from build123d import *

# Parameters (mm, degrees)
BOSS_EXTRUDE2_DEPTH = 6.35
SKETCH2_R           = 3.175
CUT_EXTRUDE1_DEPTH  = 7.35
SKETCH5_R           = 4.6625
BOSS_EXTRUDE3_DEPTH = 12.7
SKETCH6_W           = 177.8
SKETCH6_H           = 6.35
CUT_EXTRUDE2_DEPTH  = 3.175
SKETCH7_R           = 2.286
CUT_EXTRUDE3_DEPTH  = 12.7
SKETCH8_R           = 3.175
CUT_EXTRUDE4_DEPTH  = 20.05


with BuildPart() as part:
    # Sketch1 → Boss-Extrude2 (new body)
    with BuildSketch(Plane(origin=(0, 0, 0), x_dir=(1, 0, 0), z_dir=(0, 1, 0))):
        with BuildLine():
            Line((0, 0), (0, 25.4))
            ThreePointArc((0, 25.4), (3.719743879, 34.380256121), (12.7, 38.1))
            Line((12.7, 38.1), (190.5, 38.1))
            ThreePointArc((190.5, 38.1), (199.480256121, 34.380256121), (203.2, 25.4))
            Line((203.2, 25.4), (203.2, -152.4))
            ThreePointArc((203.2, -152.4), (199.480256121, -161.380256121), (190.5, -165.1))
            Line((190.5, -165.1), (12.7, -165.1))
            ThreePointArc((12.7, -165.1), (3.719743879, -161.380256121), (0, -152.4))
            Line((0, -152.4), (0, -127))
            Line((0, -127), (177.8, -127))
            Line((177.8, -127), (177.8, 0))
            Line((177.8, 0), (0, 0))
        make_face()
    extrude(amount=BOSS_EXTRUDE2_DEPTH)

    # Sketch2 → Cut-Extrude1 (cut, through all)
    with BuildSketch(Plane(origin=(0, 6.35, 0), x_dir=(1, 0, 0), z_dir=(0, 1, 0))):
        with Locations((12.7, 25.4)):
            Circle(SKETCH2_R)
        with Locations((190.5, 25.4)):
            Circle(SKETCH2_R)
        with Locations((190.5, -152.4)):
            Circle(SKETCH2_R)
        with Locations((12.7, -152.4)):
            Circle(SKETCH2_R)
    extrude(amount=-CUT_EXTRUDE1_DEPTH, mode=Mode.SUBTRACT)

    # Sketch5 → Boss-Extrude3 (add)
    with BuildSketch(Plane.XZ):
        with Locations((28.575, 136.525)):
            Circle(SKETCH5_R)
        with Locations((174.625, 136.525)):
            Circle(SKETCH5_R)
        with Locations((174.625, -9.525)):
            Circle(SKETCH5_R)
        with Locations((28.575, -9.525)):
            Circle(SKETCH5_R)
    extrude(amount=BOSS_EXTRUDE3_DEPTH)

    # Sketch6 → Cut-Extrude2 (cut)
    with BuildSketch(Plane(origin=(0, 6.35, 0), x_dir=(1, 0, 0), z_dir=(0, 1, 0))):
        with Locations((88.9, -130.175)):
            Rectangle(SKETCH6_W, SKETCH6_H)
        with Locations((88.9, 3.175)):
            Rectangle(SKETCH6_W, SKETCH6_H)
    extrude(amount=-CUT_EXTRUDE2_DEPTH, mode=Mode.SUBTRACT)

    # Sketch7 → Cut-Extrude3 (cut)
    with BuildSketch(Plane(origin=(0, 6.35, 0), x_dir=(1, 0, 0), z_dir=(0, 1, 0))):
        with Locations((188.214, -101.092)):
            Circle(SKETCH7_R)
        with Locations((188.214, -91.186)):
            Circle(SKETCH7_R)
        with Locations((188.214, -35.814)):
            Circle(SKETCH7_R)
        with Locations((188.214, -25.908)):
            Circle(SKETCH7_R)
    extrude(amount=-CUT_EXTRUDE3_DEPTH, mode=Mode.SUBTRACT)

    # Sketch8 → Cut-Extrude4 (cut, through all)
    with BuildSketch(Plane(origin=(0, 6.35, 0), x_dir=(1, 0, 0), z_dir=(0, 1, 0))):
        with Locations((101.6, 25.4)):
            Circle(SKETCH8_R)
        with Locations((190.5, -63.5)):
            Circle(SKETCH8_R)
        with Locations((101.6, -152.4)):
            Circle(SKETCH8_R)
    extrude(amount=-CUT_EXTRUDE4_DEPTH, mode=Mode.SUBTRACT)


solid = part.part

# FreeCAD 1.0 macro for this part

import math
import FreeCAD as App
import Part
import Sketcher
Q = App.Units.Quantity


def add_polygon(sketch, points):
    """Adds a closed chain of lines whose ends are joined by coincident constraints."""
    first, n = sketch.GeometryCount, len(points)
    for a, b in zip(points, points[1:] + points[:1]):
        sketch.addGeometry(Part.LineSegment(App.Vector(*a, 0), App.Vector(*b, 0)), False)
    for i in range(n):
        sketch.addConstraint(Sketcher.Constraint("Coincident", first + i, 2, first + (i + 1) % n, 1))

doc = App.newDocument("Part")
params = doc.addObject("Spreadsheet::Sheet", "Params")
for row, (alias, value) in enumerate([
    ("sketch1_radius", "0.5 in"),
    ("sketch1_width", "7 in"),
    ("sketch1_height", "1 in"),
    ("pad1_length", "0.25 in"),
    ("sketch2_diameter", "0.25 in"),
    ("pad2_length", "0.5 in"),
    ("sketch4_width", "7 in"),
    ("sketch4_height", "0.25 in"),
    ("pocket2_length", "0.125 in"),
    ("sketch5_diameter", "0.18 in"),
    ("pocket3_length", "0.5 in"),
    ("sketch6_diameter", "0.25 in"),
], start=1):
    params.set(f"A{row}", alias)
    params.set(f"B{row}", "=" + value)
    params.setAlias(f"B{row}", alias)

body = doc.addObject("PartDesign::Body", "Body")

# Sketch on XZ plane
sketch1 = body.newObject("Sketcher::SketchObject", "Sketch")
sketch1.AttachmentSupport = (doc.getObject("XZ_Plane"), [""])
sketch1.MapMode = "FlatFace"
sketch1.addGeometry([
    Part.LineSegment(App.Vector(0, -25, 0), App.Vector(0, 0, 0)),  # 0
    Part.LineSegment(App.Vector(0, 0, 0), App.Vector(178, 0, 0)),  # 1
    Part.LineSegment(App.Vector(178, 0, 0), App.Vector(178, 127, 0)),  # 2
    Part.LineSegment(App.Vector(178, 127, 0), App.Vector(0, 127, 0)),  # 3
    Part.LineSegment(App.Vector(0, 127, 0), App.Vector(0, 152, 0)),  # 4
    Part.ArcOfCircle(Part.Circle(App.Vector(13, 152, 0), App.Vector(0, 0, 1), 13), math.radians(90), math.radians(180)),  # 5
    Part.LineSegment(App.Vector(13, 165, 0), App.Vector(190, 165, 0)),  # 6
    Part.ArcOfCircle(Part.Circle(App.Vector(190, 152, 0), App.Vector(0, 0, 1), 13), math.radians(0), math.radians(90)),  # 7
    Part.LineSegment(App.Vector(203, 152, 0), App.Vector(203, -25, 0)),  # 8
    Part.ArcOfCircle(Part.Circle(App.Vector(190, -25, 0), App.Vector(0, 0, 1), 13), math.radians(-90), math.radians(0)),  # 9
    Part.LineSegment(App.Vector(190, -38, 0), App.Vector(13, -38, 0)),  # 10
    Part.ArcOfCircle(Part.Circle(App.Vector(13, -25, 0), App.Vector(0, 0, 1), 13), math.radians(180), math.radians(270)),  # 11
], False)
sketch1.addConstraint([
    Sketcher.Constraint("Coincident", 0, 2, 1, 1),
    Sketcher.Constraint("Coincident", 1, 2, 2, 1),
    Sketcher.Constraint("Coincident", 2, 2, 3, 1),
    Sketcher.Constraint("Coincident", 3, 2, 4, 1),
    Sketcher.Constraint("Tangent", 4, 2, 5, 2),
    Sketcher.Constraint("Tangent", 5, 1, 6, 1),
    Sketcher.Constraint("Tangent", 6, 2, 7, 2),
    Sketcher.Constraint("Tangent", 7, 1, 8, 1),
    Sketcher.Constraint("Tangent", 8, 2, 9, 2),
    Sketcher.Constraint("Tangent", 9, 1, 10, 1),
    Sketcher.Constraint("Tangent", 10, 2, 11, 2),
    Sketcher.Constraint("Tangent", 11, 1, 0, 1),
    Sketcher.Constraint("Vertical", 0),
    Sketcher.Constraint("Horizontal", 1),
    Sketcher.Constraint("Vertical", 2),
    Sketcher.Constraint("Horizontal", 3),
    Sketcher.Constraint("Vertical", 4),
    Sketcher.Constraint("Horizontal", 6),
    Sketcher.Constraint("Vertical", 8),
    Sketcher.Constraint("Horizontal", 10),
    Sketcher.Constraint("Coincident", 0, 2, -1, 1),
    Sketcher.Constraint("Equal", 5, 7),
    Sketcher.Constraint("Equal", 7, 9),
    Sketcher.Constraint("Equal", 9, 11),
    Sketcher.Constraint("PointOnObject", 3, 2, -2),
    Sketcher.Constraint("Equal", 3, 6),
    Sketcher.Constraint("Equal", 0, 4),
    Sketcher.Constraint("Equal", 10, 8),
    Sketcher.Constraint("Radius", 5, Q("0.5 in")),
    Sketcher.Constraint("DistanceX", 1, 1, 1, 2, Q("7 in")),
    Sketcher.Constraint("DistanceY", 0, 1, 0, 2, Q("1 in")),
])
sketch1.setExpression("Constraints[28]", "Params.sketch1_radius")
sketch1.setExpression("Constraints[29]", "Params.sketch1_width")
sketch1.setExpression("Constraints[30]", "Params.sketch1_height")
pad1 = body.newObject("PartDesign::Pad", "Pad")
pad1.Profile = sketch1
pad1.setExpression("Length", "Params.pad1_length")
pad1.Reversed = True

# Sketch on XZ plane
sketch2 = body.newObject("Sketcher::SketchObject", "Sketch001")
sketch2.AttachmentSupport = (doc.getObject("XZ_Plane"), [""])
sketch2.MapMode = "FlatFace"
sketch2.AttachmentOffset = App.Placement(App.Vector(0, 0, -0.25 * 25.4), App.Rotation())
sketch2.addGeometry([
    Part.Circle(App.Vector(12.7, -25.4, 0), App.Vector(0, 0, 1), 3.2),
    Part.Circle(App.Vector(190.5, -25.4, 0), App.Vector(0, 0, 1), 3.2),
    Part.Circle(App.Vector(190.5, 152.4, 0), App.Vector(0, 0, 1), 3.2),
    Part.Circle(App.Vector(12.7, 152.4, 0), App.Vector(0, 0, 1), 3.2),
], False)
sketch2.addConstraint([
    Sketcher.Constraint("Equal", 0, 1),
    Sketcher.Constraint("Equal", 1, 2),
    Sketcher.Constraint("Equal", 2, 3),
    Sketcher.Constraint("Horizontal", 0, 3, 1, 3),
    Sketcher.Constraint("Horizontal", 2, 3, 3, 3),
    Sketcher.Constraint("Vertical", 1, 3, 2, 3),
    Sketcher.Constraint("Vertical", 0, 3, 3, 3),
    Sketcher.Constraint("Diameter", 0, Q("0.25 in")),
    Sketcher.Constraint("DistanceY", 0, 3, -1, 1, Q("1 in")),
    Sketcher.Constraint("DistanceY", -1, 1, 2, 3, Q("6 in")),
    Sketcher.Constraint("DistanceX", 0, 3, 1, 3, Q("7 in")),
    Sketcher.Constraint("DistanceX", -1, 1, 0, 3, Q("0.5 in")),
])
sketch2.setExpression("Constraints[7]", "Params.sketch2_diameter")
pocket1 = body.newObject("PartDesign::Pocket", "Pocket")
pocket1.Profile = sketch2
pocket1.Type = "ThroughAll"
pocket1.Reversed = True

# Sketch on XZ plane
sketch3 = body.newObject("Sketcher::SketchObject", "Sketch002")
sketch3.AttachmentSupport = (doc.getObject("XZ_Plane"), [""])
sketch3.MapMode = "FlatFace"
sketch3.addGeometry([
    Part.Circle(App.Vector(28.6, 136.5, 0), App.Vector(0, 0, 1), 4.7),
    Part.Circle(App.Vector(174.6, 136.5, 0), App.Vector(0, 0, 1), 4.7),
    Part.Circle(App.Vector(174.6, -9.5, 0), App.Vector(0, 0, 1), 4.7),
    Part.Circle(App.Vector(28.6, -9.5, 0), App.Vector(0, 0, 1), 4.7),
], False)
sketch3.addConstraint([
    Sketcher.Constraint("Equal", 0, 1),
    Sketcher.Constraint("Equal", 1, 2),
    Sketcher.Constraint("Equal", 2, 3),
    Sketcher.Constraint("Horizontal", 0, 3, 1, 3),
    Sketcher.Constraint("Horizontal", 2, 3, 3, 3),
    Sketcher.Constraint("Vertical", 1, 3, 2, 3),
    Sketcher.Constraint("Vertical", 0, 3, 3, 3),
    Sketcher.Constraint("Diameter", 0, Q("9.325 mm")),
    Sketcher.Constraint("DistanceX", 0, 3, 1, 3, Q("5.75 in")),
    Sketcher.Constraint("DistanceY", 2, 3, 1, 3, Q("5.75 in")),
    Sketcher.Constraint("DistanceX", -1, 1, 0, 3, Q("1.125 in")),
    Sketcher.Constraint("DistanceY", -1, 1, 0, 3, Q("5.375 in")),
])
pad2 = body.newObject("PartDesign::Pad", "Pad001")
pad2.Profile = sketch3
pad2.setExpression("Length", "Params.pad2_length")

# Sketch on XZ plane
sketch4 = body.newObject("Sketcher::SketchObject", "Sketch003")
sketch4.AttachmentSupport = (doc.getObject("XZ_Plane"), [""])
sketch4.MapMode = "FlatFace"
sketch4.AttachmentOffset = App.Placement(App.Vector(0, 0, -0.25 * 25.4), App.Rotation())
add_polygon(sketch4, [(0, 127), (0, 133), (178, 133), (178, 127)])  # lines 0-3
add_polygon(sketch4, [(0, -6), (0, 0), (178, 0), (178, -6)])  # lines 4-7
sketch4.addConstraint([
    Sketcher.Constraint("Vertical", 0),
    Sketcher.Constraint("Horizontal", 1),
    Sketcher.Constraint("Vertical", 2),
    Sketcher.Constraint("Horizontal", 3),
    Sketcher.Constraint("Vertical", 4),
    Sketcher.Constraint("Horizontal", 5),
    Sketcher.Constraint("Vertical", 6),
    Sketcher.Constraint("Horizontal", 7),
    Sketcher.Constraint("Coincident", 4, 2, -1, 1),
    Sketcher.Constraint("PointOnObject", 0, 2, -2),
    Sketcher.Constraint("Vertical", 2, 2, 5, 2),
    Sketcher.Constraint("Equal", 2, 4),
    Sketcher.Constraint("DistanceX", 1, 1, 1, 2, Q("7 in")),
    Sketcher.Constraint("DistanceY", -1, 1, 2, 2, Q("5 in")),
    Sketcher.Constraint("DistanceY", 0, 1, 0, 2, Q("0.25 in")),
])
sketch4.setExpression("Constraints[20]", "Params.sketch4_width")
sketch4.setExpression("Constraints[22]", "Params.sketch4_height")
pocket2 = body.newObject("PartDesign::Pocket", "Pocket001")
pocket2.Profile = sketch4
pocket2.setExpression("Length", "Params.pocket2_length")
pocket2.Reversed = True

# Sketch on XZ plane
sketch5 = body.newObject("Sketcher::SketchObject", "Sketch004")
sketch5.AttachmentSupport = (doc.getObject("XZ_Plane"), [""])
sketch5.MapMode = "FlatFace"
sketch5.AttachmentOffset = App.Placement(App.Vector(0, 0, -0.25 * 25.4), App.Rotation())
sketch5.addGeometry([
    Part.Circle(App.Vector(188.2, 101.1, 0), App.Vector(0, 0, 1), 2.3),
    Part.Circle(App.Vector(188.2, 91.2, 0), App.Vector(0, 0, 1), 2.3),
    Part.Circle(App.Vector(188.2, 35.8, 0), App.Vector(0, 0, 1), 2.3),
    Part.Circle(App.Vector(188.2, 25.9, 0), App.Vector(0, 0, 1), 2.3),
], False)
sketch5.addConstraint([
    Sketcher.Constraint("Equal", 0, 1),
    Sketcher.Constraint("Equal", 1, 2),
    Sketcher.Constraint("Equal", 2, 3),
    Sketcher.Constraint("Vertical", 0, 3, 1, 3),
    Sketcher.Constraint("Vertical", 1, 3, 2, 3),
    Sketcher.Constraint("Vertical", 2, 3, 3, 3),
    Sketcher.Constraint("Diameter", 0, Q("0.18 in")),
    Sketcher.Constraint("DistanceX", -1, 1, 0, 3, Q("7.41 in")),
    Sketcher.Constraint("DistanceY", -1, 1, 0, 3, Q("3.98 in")),
    Sketcher.Constraint("DistanceY", -1, 1, 1, 3, Q("3.59 in")),
    Sketcher.Constraint("DistanceY", -1, 1, 2, 3, Q("1.41 in")),
    Sketcher.Constraint("DistanceY", -1, 1, 3, 3, Q("1.02 in")),
])
sketch5.setExpression("Constraints[6]", "Params.sketch5_diameter")
pocket3 = body.newObject("PartDesign::Pocket", "Pocket002")
pocket3.Profile = sketch5
pocket3.setExpression("Length", "Params.pocket3_length")
pocket3.Reversed = True

# Sketch on XZ plane
sketch6 = body.newObject("Sketcher::SketchObject", "Sketch005")
sketch6.AttachmentSupport = (doc.getObject("XZ_Plane"), [""])
sketch6.MapMode = "FlatFace"
sketch6.AttachmentOffset = App.Placement(App.Vector(0, 0, -0.25 * 25.4), App.Rotation())
sketch6.addGeometry([
    Part.Circle(App.Vector(101.6, -25.4, 0), App.Vector(0, 0, 1), 3.2),
    Part.Circle(App.Vector(190.5, 63.5, 0), App.Vector(0, 0, 1), 3.2),
    Part.Circle(App.Vector(101.6, 152.4, 0), App.Vector(0, 0, 1), 3.2),
], False)
sketch6.addConstraint([
    Sketcher.Constraint("Equal", 0, 1),
    Sketcher.Constraint("Equal", 1, 2),
    Sketcher.Constraint("Vertical", 0, 3, 2, 3),
    Sketcher.Constraint("Diameter", 0, Q("0.25 in")),
    Sketcher.Constraint("DistanceX", -1, 1, 0, 3, Q("4 in")),
    Sketcher.Constraint("DistanceY", 0, 3, -1, 1, Q("1 in")),
    Sketcher.Constraint("DistanceY", -1, 1, 2, 3, Q("6 in")),
    Sketcher.Constraint("DistanceX", -1, 1, 1, 3, Q("7.5 in")),
    Sketcher.Constraint("DistanceY", -1, 1, 1, 3, Q("2.5 in")),
])
sketch6.setExpression("Constraints[3]", "Params.sketch6_diameter")
pocket4 = body.newObject("PartDesign::Pocket", "Pocket003")
pocket4.Profile = sketch6
pocket4.Type = "ThroughAll"
pocket4.Reversed = True

doc.recompute()
